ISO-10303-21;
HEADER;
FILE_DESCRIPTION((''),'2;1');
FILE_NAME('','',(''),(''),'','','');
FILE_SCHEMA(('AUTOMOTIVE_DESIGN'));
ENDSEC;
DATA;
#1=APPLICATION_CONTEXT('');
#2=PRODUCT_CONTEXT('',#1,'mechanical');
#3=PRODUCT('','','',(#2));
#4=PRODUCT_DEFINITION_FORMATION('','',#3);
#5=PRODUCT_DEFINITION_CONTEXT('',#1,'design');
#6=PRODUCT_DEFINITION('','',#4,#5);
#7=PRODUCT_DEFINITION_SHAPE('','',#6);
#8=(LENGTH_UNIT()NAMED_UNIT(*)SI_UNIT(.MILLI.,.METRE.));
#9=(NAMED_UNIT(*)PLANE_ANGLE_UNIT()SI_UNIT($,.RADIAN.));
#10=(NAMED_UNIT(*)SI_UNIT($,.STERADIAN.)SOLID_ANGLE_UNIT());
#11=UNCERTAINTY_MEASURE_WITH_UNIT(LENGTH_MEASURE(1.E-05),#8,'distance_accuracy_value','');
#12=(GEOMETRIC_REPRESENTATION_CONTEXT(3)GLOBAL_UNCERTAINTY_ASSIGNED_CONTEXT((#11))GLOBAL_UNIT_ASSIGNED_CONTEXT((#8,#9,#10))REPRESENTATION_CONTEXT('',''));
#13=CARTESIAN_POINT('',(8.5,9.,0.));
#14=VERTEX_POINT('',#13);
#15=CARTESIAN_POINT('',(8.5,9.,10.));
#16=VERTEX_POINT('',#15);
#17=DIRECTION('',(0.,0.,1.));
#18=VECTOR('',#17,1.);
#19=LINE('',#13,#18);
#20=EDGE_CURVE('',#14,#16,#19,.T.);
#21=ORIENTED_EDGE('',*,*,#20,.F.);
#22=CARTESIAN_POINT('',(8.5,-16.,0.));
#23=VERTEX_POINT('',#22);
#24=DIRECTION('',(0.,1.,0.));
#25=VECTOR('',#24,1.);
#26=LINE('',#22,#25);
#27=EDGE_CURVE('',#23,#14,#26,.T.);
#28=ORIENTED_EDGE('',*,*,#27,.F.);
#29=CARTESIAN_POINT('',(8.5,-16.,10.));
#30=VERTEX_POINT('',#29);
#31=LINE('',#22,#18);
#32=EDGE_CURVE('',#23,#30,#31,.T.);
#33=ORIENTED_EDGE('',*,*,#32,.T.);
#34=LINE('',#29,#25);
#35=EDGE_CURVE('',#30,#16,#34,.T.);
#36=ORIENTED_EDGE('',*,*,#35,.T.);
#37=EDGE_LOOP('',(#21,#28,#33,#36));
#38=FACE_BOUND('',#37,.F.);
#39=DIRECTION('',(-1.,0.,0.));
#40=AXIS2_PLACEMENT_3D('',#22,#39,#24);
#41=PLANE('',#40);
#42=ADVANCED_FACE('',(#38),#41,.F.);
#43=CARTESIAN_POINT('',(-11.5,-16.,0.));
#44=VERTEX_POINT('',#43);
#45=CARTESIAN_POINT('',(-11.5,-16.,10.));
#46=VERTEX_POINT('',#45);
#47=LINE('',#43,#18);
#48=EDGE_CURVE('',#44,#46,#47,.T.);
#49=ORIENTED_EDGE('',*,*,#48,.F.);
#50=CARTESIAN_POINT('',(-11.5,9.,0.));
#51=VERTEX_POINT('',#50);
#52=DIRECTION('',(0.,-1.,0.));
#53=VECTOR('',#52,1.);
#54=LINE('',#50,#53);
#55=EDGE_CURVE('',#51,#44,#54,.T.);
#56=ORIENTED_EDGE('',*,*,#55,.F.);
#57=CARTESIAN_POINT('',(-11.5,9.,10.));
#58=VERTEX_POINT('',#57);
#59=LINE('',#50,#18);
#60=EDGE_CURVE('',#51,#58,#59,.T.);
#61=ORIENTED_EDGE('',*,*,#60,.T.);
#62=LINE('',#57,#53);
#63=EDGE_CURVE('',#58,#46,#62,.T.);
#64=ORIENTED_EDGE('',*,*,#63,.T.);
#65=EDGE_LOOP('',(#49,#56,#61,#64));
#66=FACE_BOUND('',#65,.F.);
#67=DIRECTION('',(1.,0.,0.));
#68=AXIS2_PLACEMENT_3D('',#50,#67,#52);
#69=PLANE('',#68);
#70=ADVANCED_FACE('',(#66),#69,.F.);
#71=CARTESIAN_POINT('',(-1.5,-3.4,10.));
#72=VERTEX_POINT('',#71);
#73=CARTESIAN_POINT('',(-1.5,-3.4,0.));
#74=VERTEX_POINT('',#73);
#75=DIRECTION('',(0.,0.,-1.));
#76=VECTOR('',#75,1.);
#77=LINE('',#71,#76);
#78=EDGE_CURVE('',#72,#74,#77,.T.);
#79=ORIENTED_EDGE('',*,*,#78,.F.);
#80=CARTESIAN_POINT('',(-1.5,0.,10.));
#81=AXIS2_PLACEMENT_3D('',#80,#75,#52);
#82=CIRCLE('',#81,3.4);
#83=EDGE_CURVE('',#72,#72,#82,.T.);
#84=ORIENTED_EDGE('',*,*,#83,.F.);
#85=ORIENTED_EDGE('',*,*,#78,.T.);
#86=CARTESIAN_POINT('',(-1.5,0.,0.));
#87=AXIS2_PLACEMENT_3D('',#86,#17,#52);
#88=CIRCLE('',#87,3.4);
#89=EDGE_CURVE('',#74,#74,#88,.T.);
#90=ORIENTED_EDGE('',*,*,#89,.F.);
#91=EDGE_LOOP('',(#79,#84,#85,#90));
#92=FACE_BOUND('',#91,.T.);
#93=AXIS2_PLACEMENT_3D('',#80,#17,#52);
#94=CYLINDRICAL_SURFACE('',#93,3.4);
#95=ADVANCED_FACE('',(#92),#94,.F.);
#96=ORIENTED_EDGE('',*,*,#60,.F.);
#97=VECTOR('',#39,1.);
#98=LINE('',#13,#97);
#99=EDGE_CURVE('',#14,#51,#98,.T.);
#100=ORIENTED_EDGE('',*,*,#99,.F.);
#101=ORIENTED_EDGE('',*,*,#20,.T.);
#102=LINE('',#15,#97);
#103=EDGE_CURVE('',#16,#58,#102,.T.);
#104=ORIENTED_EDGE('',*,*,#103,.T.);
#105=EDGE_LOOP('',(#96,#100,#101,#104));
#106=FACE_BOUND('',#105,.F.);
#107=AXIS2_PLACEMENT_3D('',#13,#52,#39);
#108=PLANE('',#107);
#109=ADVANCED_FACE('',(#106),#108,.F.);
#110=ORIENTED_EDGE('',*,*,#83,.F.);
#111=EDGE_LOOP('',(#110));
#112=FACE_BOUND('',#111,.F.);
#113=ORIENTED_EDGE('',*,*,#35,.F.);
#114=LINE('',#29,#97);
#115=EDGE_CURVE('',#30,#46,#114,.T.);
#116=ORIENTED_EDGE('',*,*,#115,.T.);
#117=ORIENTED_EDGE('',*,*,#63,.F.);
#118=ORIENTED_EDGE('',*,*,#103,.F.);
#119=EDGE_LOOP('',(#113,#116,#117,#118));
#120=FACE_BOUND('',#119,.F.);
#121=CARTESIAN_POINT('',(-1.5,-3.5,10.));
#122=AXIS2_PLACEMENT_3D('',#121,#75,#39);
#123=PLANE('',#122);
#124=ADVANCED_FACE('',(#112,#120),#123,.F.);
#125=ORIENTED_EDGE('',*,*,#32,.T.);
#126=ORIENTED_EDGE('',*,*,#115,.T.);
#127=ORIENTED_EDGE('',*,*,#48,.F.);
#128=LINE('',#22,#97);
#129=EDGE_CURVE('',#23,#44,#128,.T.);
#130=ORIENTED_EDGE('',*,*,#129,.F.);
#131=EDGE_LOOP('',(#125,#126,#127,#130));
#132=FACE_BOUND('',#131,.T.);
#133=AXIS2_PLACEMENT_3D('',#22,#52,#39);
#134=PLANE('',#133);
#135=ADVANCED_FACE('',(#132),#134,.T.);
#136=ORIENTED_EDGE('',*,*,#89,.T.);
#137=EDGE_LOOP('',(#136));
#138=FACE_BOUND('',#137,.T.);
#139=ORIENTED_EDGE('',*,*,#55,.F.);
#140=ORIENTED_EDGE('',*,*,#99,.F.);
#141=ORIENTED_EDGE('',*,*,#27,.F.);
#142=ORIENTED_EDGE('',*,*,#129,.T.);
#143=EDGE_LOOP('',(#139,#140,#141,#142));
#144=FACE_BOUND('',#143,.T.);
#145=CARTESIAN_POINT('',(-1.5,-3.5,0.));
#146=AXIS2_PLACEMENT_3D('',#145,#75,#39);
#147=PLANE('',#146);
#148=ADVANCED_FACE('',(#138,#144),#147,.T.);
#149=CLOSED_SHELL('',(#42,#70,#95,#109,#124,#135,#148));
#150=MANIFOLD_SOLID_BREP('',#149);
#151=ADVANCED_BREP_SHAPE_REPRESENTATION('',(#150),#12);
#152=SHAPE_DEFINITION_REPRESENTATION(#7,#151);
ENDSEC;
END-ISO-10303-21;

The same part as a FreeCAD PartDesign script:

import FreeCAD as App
import Part
import Sketcher
from FreeCAD import Vector
Q = App.Units.Quantity


def add_polygon(sketch, points):
    """Adds a closed chain of lines whose ends are joined by coincident constraints."""
    first, n = sketch.GeometryCount, len(points)
    for a, b in zip(points, points[1:] + points[:1]):
        sketch.addGeometry(Part.LineSegment(App.Vector(*a, 0), App.Vector(*b, 0)), False)
    for i in range(n):
        sketch.addConstraint(Sketcher.Constraint("Coincident", first + i, 2, first + (i + 1) % n, 1))

doc = App.newDocument("Part")
body = doc.addObject("PartDesign::Body", "Body")

# Sketch on XY plane
sketch1 = body.newObject("Sketcher::SketchObject", "Sketch")
sketch1.AttachmentSupport = (doc.getObject("XY_Plane"), [""])
sketch1.MapMode = "FlatFace"
add_polygon(sketch1, [(-12, -16), (8, -16), (8, 9), (-12, 9)])  # lines 0-3
sketch1.addConstraint(Sketcher.Constraint("Horizontal", 0))
sketch1.addConstraint(Sketcher.Constraint("Vertical", 1))
sketch1.addConstraint(Sketcher.Constraint("Horizontal", 2))
sketch1.addConstraint(Sketcher.Constraint("Vertical", 3))
sketch1.addConstraint(Sketcher.Constraint("DistanceX", 0, 1, 0, 2, Q("20 mm")))
sketch1.addConstraint(Sketcher.Constraint("DistanceY", 1, 1, 1, 2, Q("25 mm")))
sketch1.addConstraint(Sketcher.Constraint("DistanceY", 0, 2, -1, 1, Q("16 mm")))
sketch1.addConstraint(Sketcher.Constraint("DistanceX", -1, 1, 0, 2, Q("8.5 mm")))
pad1 = body.newObject("PartDesign::Pad", "Pad")
pad1.Profile = sketch1
pad1.Length = 10

# Sketch on XY plane
sketch2 = body.newObject("Sketcher::SketchObject", "Sketch001")
sketch2.AttachmentSupport = (doc.getObject("XY_Plane"), [""])
sketch2.MapMode = "FlatFace"
sketch2.AttachmentOffset = App.Placement(Vector(0, 0, 10), App.Rotation())
sketch2.addGeometry(Part.Circle(Vector(-1.5, 0, 0), Vector(0, 0, 1), 3.4), False)
sketch2.addConstraint(Sketcher.Constraint("PointOnObject", 0, 3, -1))
sketch2.addConstraint(Sketcher.Constraint("Diameter", 0, Q("6.8 mm")))
sketch2.addConstraint(Sketcher.Constraint("DistanceX", 0, 3, -1, 1, Q("1.5 mm")))
doc.recompute()
hole = body.newObject("PartDesign::Hole", "Hole")
hole.Profile = sketch2
hole.ThreadType = "None"
hole.Diameter = 6.8
hole.DepthType = "ThroughAll"

doc.recompute()
